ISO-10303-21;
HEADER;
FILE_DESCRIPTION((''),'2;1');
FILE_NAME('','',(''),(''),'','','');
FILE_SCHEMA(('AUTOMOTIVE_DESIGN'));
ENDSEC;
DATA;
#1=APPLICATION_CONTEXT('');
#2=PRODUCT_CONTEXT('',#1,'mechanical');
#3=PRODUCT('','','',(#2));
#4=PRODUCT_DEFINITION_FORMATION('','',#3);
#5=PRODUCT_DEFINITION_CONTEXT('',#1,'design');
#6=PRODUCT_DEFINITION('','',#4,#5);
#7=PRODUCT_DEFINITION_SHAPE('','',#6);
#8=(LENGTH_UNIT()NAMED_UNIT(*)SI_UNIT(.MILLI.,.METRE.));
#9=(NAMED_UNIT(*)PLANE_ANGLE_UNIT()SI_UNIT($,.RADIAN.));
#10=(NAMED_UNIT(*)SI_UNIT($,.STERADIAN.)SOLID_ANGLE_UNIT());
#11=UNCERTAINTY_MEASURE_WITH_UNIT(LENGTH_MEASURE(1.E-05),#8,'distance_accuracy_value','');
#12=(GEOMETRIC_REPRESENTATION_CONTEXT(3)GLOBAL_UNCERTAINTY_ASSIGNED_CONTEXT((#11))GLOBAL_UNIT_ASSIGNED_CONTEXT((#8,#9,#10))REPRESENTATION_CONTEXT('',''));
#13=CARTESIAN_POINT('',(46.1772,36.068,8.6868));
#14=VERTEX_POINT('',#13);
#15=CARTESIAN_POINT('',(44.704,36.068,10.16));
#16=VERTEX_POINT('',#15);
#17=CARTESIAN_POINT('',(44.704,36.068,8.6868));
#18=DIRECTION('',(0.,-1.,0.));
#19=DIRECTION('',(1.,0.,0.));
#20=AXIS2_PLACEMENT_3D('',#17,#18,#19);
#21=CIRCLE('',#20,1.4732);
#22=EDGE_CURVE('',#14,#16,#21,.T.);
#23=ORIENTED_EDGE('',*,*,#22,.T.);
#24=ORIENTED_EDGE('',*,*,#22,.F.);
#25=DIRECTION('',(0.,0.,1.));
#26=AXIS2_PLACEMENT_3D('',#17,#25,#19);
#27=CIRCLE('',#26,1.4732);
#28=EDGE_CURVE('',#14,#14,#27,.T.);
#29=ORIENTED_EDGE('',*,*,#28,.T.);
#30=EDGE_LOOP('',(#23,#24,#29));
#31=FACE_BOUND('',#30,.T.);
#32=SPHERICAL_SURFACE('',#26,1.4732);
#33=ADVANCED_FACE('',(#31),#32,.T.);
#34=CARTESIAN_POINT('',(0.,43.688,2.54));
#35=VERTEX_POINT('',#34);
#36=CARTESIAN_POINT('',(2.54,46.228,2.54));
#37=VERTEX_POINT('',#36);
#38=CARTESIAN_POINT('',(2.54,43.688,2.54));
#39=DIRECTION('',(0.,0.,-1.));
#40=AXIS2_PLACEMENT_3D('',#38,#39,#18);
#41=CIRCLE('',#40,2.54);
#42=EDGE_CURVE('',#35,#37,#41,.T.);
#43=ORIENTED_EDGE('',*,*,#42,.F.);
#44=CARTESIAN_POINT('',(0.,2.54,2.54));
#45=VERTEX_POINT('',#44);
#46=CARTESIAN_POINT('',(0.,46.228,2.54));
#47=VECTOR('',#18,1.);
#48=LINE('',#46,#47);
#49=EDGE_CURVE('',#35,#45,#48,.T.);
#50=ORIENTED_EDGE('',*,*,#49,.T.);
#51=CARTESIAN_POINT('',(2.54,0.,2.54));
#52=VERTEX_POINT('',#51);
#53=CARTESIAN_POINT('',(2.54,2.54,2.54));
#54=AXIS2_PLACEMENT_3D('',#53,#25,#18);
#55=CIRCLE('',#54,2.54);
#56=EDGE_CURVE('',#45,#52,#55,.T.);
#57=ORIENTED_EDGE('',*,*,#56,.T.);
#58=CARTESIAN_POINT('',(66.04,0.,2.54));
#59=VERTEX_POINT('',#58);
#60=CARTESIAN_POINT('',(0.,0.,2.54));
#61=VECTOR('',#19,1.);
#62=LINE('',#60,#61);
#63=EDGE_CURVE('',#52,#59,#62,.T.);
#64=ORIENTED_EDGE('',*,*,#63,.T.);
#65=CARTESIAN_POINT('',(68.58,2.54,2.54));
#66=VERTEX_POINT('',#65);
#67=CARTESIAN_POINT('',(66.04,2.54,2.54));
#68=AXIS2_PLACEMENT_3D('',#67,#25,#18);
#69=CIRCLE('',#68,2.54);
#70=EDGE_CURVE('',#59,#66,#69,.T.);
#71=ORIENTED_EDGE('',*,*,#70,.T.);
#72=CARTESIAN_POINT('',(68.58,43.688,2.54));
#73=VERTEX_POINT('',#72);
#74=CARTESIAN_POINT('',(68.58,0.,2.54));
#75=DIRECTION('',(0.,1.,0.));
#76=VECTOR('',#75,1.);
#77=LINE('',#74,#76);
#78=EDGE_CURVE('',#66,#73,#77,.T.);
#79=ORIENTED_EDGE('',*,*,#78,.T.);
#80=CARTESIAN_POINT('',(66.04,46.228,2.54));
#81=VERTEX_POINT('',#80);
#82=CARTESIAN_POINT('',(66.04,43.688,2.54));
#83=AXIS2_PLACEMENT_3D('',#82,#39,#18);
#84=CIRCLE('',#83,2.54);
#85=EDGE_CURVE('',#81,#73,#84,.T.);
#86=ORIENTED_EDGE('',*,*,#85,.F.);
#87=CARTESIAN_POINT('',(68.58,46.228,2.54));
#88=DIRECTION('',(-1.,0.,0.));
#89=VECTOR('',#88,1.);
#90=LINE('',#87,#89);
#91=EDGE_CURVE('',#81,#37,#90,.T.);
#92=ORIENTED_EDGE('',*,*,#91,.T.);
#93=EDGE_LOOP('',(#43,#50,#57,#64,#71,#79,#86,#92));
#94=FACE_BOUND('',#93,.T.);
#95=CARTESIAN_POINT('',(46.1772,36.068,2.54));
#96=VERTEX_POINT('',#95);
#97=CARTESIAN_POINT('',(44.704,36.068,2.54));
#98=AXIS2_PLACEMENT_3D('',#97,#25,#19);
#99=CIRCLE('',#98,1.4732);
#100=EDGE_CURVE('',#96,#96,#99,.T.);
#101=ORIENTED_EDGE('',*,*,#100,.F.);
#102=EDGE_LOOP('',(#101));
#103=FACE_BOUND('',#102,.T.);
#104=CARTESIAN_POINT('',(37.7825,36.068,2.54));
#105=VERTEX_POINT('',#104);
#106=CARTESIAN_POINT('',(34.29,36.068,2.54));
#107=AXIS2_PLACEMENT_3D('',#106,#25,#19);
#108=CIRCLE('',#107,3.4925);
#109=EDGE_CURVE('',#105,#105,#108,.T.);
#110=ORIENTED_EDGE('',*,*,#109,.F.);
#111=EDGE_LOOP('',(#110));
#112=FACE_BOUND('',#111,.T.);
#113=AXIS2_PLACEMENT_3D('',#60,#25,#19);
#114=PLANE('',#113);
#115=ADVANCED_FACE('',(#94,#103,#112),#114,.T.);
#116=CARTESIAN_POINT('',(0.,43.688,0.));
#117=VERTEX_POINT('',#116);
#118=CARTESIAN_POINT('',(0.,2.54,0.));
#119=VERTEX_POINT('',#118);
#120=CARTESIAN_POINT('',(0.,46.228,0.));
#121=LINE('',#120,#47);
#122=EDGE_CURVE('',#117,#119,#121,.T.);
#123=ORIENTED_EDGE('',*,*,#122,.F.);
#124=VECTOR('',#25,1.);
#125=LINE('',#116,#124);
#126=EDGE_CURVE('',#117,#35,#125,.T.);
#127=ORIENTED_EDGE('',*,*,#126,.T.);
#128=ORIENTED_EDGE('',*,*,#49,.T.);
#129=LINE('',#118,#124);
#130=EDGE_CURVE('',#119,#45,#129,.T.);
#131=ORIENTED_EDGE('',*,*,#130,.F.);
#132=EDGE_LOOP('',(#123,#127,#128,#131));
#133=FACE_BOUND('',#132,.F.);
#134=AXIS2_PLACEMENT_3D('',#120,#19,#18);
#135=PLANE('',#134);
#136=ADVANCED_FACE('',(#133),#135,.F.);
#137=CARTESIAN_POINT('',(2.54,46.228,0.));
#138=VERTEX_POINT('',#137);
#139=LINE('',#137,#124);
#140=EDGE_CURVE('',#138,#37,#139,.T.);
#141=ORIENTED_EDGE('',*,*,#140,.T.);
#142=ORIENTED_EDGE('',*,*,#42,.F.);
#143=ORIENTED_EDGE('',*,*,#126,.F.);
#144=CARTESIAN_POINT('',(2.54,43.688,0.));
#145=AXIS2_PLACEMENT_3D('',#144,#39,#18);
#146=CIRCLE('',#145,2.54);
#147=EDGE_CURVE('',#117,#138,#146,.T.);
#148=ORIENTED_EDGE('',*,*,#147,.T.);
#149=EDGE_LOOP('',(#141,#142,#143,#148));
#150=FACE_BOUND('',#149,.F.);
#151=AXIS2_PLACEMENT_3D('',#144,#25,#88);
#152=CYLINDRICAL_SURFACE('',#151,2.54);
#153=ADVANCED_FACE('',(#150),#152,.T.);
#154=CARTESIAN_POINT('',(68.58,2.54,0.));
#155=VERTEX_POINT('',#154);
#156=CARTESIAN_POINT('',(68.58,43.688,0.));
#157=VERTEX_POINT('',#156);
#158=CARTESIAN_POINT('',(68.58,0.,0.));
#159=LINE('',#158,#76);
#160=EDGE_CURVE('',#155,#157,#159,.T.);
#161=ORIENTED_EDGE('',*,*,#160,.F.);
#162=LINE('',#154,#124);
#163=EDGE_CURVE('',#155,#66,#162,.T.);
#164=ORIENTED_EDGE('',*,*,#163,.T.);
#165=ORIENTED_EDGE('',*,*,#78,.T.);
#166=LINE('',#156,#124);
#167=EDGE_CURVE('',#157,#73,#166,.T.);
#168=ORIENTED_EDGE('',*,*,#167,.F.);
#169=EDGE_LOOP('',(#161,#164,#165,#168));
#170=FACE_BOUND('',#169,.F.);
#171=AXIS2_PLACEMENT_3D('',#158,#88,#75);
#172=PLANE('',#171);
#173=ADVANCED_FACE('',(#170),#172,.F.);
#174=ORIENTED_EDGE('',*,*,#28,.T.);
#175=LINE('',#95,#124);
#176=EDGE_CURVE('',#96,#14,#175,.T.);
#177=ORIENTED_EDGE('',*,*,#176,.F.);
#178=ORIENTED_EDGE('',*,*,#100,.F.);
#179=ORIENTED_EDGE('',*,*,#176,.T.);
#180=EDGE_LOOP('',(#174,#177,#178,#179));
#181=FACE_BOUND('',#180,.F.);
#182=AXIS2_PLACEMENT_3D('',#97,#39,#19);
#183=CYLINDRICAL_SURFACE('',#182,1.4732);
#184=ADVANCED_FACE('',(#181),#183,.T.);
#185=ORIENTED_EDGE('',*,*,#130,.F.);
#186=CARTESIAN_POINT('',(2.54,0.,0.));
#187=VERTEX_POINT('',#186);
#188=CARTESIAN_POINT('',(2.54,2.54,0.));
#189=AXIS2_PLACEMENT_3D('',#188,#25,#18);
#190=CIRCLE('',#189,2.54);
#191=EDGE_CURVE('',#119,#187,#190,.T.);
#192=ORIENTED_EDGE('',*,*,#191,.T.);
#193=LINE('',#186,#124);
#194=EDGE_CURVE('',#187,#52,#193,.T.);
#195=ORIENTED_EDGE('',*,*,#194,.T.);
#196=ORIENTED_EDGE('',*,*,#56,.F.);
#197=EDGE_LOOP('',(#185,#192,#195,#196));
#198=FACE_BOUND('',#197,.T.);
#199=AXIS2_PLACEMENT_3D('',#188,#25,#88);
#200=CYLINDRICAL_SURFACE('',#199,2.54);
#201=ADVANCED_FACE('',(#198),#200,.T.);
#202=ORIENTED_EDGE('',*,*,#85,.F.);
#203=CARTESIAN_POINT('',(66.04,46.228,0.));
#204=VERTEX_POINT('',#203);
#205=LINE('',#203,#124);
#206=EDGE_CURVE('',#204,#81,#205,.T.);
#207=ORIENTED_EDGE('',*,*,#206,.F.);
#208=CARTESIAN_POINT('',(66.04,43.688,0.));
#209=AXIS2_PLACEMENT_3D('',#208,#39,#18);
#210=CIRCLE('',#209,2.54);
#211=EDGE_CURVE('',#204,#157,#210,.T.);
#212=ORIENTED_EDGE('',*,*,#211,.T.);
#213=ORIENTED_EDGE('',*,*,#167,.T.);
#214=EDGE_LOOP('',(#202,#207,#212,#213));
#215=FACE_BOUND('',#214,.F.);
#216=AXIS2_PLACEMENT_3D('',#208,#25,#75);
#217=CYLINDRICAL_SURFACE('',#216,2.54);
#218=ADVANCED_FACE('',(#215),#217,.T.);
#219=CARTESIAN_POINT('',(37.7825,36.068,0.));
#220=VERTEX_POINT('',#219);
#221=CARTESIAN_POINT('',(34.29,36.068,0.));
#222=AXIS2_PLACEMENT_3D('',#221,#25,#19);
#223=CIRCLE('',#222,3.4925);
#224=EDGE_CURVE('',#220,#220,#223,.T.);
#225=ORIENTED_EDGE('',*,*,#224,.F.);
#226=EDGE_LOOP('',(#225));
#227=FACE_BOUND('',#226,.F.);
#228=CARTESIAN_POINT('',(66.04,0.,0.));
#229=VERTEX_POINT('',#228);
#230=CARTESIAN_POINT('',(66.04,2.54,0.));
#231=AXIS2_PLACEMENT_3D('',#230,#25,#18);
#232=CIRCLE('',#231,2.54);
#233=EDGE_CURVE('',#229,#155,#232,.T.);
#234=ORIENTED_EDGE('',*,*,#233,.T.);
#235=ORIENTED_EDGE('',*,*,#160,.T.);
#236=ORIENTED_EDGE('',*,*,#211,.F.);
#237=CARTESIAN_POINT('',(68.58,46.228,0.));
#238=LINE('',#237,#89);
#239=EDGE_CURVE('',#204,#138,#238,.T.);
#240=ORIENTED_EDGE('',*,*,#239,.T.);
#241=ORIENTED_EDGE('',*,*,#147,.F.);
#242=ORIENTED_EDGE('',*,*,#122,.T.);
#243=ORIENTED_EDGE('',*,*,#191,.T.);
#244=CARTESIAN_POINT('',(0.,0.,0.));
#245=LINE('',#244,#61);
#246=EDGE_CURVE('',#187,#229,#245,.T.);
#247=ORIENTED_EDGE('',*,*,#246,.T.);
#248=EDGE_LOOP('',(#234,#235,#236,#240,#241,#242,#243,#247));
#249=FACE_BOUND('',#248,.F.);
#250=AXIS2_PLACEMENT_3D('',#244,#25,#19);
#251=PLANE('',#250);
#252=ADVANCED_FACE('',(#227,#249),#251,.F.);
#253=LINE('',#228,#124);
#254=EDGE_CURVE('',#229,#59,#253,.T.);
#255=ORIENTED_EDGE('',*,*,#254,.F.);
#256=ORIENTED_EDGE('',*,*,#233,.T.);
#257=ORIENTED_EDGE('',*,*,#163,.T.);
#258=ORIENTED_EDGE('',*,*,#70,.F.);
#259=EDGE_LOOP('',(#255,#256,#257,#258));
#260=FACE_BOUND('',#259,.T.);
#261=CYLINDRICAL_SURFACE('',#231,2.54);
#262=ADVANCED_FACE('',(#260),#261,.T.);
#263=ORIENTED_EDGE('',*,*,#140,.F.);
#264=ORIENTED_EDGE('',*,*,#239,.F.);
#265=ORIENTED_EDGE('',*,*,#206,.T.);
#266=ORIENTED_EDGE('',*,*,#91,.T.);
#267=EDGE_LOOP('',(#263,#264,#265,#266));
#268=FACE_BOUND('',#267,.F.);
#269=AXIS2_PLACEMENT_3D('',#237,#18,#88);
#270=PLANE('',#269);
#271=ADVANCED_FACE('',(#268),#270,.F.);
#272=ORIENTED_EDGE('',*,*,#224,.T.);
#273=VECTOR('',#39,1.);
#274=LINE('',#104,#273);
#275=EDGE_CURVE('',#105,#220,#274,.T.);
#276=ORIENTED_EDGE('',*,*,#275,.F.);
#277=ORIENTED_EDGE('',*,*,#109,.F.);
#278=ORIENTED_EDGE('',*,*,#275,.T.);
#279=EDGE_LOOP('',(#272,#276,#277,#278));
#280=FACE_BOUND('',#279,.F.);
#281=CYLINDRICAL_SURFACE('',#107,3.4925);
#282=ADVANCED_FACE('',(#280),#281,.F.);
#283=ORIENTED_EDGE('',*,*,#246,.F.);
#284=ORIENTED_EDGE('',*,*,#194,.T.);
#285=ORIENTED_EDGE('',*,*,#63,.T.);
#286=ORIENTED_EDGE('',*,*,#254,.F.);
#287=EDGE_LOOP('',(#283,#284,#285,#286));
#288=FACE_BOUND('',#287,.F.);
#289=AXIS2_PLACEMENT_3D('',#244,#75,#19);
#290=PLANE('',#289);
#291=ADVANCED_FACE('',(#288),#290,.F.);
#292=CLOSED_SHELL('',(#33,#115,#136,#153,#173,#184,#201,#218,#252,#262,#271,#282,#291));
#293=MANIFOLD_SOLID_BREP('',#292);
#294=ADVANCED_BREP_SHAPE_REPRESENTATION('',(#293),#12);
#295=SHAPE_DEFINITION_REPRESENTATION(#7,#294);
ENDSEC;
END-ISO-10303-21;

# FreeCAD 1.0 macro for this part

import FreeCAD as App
import Part
import Sketcher
from FreeCAD import Vector
Q = App.Units.Quantity


def edges_at(feature, points):
    """Names of the edges that pass closest to the given points."""
    edges = feature.Shape.Edges
    near = lambda p: min(range(len(edges)), key=lambda i: edges[i].distToShape(Part.Vertex(*p))[0])
    return sorted({f"Edge{near(p) + 1}" for p in points})

doc = App.newDocument("Part")
body = doc.addObject("PartDesign::Body", "Body")

# Sketch on XY plane
sketch1 = body.newObject("Sketcher::SketchObject", "Sketch")
sketch1.AttachmentSupport = (doc.getObject("XY_Plane"), [""])
sketch1.MapMode = "FlatFace"
sketch1.addGeometry([
    Part.LineSegment(Vector(0, 46, 0), Vector(0, 0, 0)),
    Part.LineSegment(Vector(0, 0, 0), Vector(69, 0, 0)),
    Part.LineSegment(Vector(69, 0, 0), Vector(69, 46, 0)),
    Part.LineSegment(Vector(69, 46, 0), Vector(0, 46, 0)),
], False)
sketch1.addConstraint([
    Sketcher.Constraint("Coincident", 0, 2, 1, 1),
    Sketcher.Constraint("Coincident", 1, 2, 2, 1),
    Sketcher.Constraint("Coincident", 2, 2, 3, 1),
    Sketcher.Constraint("Coincident", 3, 2, 0, 1),
    Sketcher.Constraint("Vertical", 0),
    Sketcher.Constraint("Horizontal", 1),
    Sketcher.Constraint("Vertical", 2),
    Sketcher.Constraint("Horizontal", 3),
    Sketcher.Constraint("Coincident", 0, 2, -1, 1),
    Sketcher.Constraint("DistanceX", 1, 1, 1, 2, Q("2.7 in")),
    Sketcher.Constraint("DistanceY", 0, 2, 0, 1, Q("1.82 in")),
])
pad1 = body.newObject("PartDesign::Pad", "Pad")
pad1.Profile = sketch1
pad1.Length = Q("0.1 in")

# Sketch on XY plane
sketch2 = body.newObject("Sketcher::SketchObject", "Sketch001")
sketch2.AttachmentSupport = (doc.getObject("XY_Plane"), [""])
sketch2.MapMode = "FlatFace"
sketch2.AttachmentOffset = App.Placement(Vector(0, 0, 0.1 * 25.4), App.Rotation())
sketch2.addGeometry(Part.Circle(Vector(34.3, 36.1, 0), Vector(0, 0, 1), 3.5), False)
sketch2.addConstraint([
    Sketcher.Constraint("Diameter", 0, Q("0.275 in")),
    Sketcher.Constraint("DistanceX", -1, 1, 0, 3, Q("1.35 in")),
    Sketcher.Constraint("DistanceY", -1, 1, 0, 3, Q("1.42 in")),
])
pocket1 = body.newObject("PartDesign::Pocket", "Pocket")
pocket1.Profile = sketch2
pocket1.Length = Q("0.1 in")

# Sketch on XY plane
sketch3 = body.newObject("Sketcher::SketchObject", "Sketch002")
sketch3.AttachmentSupport = (doc.getObject("XY_Plane"), [""])
sketch3.MapMode = "FlatFace"
sketch3.AttachmentOffset = App.Placement(Vector(0, 0, 0.1 * 25.4), App.Rotation())
sketch3.addGeometry(Part.Circle(Vector(44.7, 36.1, 0), Vector(0, 0, 1), 1.5), False)
sketch3.addConstraint([
    Sketcher.Constraint("Diameter", 0, Q("0.116 in")),
    Sketcher.Constraint("DistanceX", -1, 1, 0, 3, Q("1.76 in")),
    Sketcher.Constraint("DistanceY", -1, 1, 0, 3, Q("1.42 in")),
])
pad2 = body.newObject("PartDesign::Pad", "Pad001")
pad2.Profile = sketch3
pad2.Length = Q("0.3 in")
doc.recompute()

fillet = body.newObject("PartDesign::Fillet", "Fillet")
fillet.Base = (pad2, edges_at(pad2, [(43.231, 36.068, 10.16)]))
fillet.Radius = Q("0.058 in")
doc.recompute()

fillet2 = body.newObject("PartDesign::Fillet", "Fillet001")
fillet2.Base = (fillet, edges_at(fillet, [
    (0, 46.228, 1.27),
    (68.58, 46.228, 1.27),
    (68.58, 0, 1.27),
    (0, 0, 1.27),
]))
fillet2.Radius = Q("0.1 in")

doc.recompute()
